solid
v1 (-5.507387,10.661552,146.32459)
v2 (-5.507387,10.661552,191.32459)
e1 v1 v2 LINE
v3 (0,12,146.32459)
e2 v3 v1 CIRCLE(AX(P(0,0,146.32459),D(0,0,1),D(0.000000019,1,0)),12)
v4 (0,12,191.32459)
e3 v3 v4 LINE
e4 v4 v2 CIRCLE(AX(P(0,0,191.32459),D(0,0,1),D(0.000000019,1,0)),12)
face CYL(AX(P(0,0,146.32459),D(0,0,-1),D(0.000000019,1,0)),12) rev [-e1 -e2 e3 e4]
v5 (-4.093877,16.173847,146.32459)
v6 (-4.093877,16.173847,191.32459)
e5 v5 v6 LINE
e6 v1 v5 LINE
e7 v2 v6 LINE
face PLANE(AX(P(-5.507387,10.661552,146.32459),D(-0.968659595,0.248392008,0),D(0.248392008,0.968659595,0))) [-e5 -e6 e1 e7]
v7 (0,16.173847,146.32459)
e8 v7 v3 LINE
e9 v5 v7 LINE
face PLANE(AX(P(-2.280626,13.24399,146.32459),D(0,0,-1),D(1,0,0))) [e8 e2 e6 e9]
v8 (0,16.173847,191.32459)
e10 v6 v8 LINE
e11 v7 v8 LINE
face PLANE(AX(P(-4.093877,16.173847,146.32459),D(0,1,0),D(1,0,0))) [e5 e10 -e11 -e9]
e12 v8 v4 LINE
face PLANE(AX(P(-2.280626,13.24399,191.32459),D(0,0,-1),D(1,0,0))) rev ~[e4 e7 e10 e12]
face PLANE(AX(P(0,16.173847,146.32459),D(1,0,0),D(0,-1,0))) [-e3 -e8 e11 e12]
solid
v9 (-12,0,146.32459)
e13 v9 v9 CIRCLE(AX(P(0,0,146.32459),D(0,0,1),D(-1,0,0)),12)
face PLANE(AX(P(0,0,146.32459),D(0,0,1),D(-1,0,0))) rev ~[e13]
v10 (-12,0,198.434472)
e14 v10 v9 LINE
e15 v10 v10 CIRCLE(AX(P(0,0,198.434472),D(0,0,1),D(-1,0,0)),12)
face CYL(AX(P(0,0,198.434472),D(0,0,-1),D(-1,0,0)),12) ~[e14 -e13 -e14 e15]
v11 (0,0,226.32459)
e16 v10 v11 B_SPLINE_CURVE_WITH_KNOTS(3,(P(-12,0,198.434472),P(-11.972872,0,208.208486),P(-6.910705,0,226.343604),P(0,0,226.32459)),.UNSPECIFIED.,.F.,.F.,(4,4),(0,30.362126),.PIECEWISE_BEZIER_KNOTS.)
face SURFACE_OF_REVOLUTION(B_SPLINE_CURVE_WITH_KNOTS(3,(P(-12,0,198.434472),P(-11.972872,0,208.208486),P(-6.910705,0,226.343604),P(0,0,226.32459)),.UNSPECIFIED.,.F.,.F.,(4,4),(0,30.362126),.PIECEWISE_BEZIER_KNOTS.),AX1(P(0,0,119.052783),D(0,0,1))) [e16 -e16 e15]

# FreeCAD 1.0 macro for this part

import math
import FreeCAD as App
import Part
import Sketcher
from FreeCAD import Vector

doc = App.newDocument("Part")
params = doc.addObject("Spreadsheet::Sheet", "Params")
for row, (alias, value) in enumerate([
    ("sketch1_height", "80 mm"),
    ("revolution_angle", "360 deg"),
    ("sketch2_radius", "12 mm"),
    ("pad1_length", "45 mm"),
], start=1):
    params.set(f"A{row}", alias)
    params.set(f"B{row}", "=" + value)
    params.setAlias(f"B{row}", alias)

body = doc.addObject("PartDesign::Body", "Body")

# Sketch on XZ plane
sketch1 = doc.addObject("Sketcher::SketchObject", "Sketch")
body.addObject(sketch1)
sketch1.AttachmentSupport = (doc.XZ_Plane, [""])
sketch1.MapMode = "FlatFace"
sketch1.addGeometry([
    Part.BSplineCurve([Vector(-12, 198.434472, 0), Vector(-11.972872, 208.208486, 0), Vector(-6.910705, 226.343604, 0), Vector(0, 226.32459, 0)], [4, 4], [0, 30.362126], False, 3, [1, 1, 1, 1], False),
    Part.LineSegment(Vector(-12, 198.434472, 0), Vector(-12, 146.32459, 0)),
    Part.LineSegment(Vector(-12, 146.32459, 0), Vector(0, 146.32459, 0)),
    Part.LineSegment(Vector(0, 146.32459, 0), Vector(0, 226.32459, 0)),
], False)
sketch1.addConstraint([
    Sketcher.Constraint("Block", 0),
    Sketcher.Constraint("Coincident", 0, 1, 1, 1),
    Sketcher.Constraint("Coincident", 1, 2, 2, 1),
    Sketcher.Constraint("Coincident", 2, 2, 3, 1),
    Sketcher.Constraint("Coincident", 3, 2, 0, 2),
    Sketcher.Constraint("Vertical", 1),
    Sketcher.Constraint("Horizontal", 2),
    Sketcher.Constraint("Vertical", 3),
    Sketcher.Constraint("DistanceY", 3, 1, 3, 2, 80.0),
])
sketch1.setExpression("Constraints[8]", "Params.sketch1_height")
revolution = doc.addObject("PartDesign::Revolution", "Revolution")
body.addObject(revolution)
revolution.Profile = sketch1
revolution.ReferenceAxis = (sketch1, ["V_Axis"])
revolution.setExpression("Angle", "Params.revolution_angle")
body2 = doc.addObject("PartDesign::Body", "Body001")

# Sketch on XY plane
sketch2 = doc.addObject("Sketcher::SketchObject", "Sketch001")
body2.addObject(sketch2)
sketch2.AttachmentSupport = (doc.getObject("XY_Plane001"), [""])
sketch2.MapMode = "FlatFace"
sketch2.AttachmentOffset = App.Placement(Vector(0, 0, 146.32459), App.Rotation())
sketch2.addGeometry([
    Part.LineSegment(Vector(0, 16.173847, 0), Vector(0, 12, 0)),
    Part.ArcOfCircle(Part.Circle(Vector(0, 0, 0), Vector(0, 0, 1), 12), math.radians(89.999999), math.radians(117.319302)),
    Part.LineSegment(Vector(-5.507387, 10.661552, 0), Vector(-4.093877, 16.173847, 0)),
    Part.LineSegment(Vector(-4.093877, 16.173847, 0), Vector(0, 16.173847, 0)),
], False)
sketch2.addConstraint([
    Sketcher.Constraint("Coincident", 0, 2, 1, 1),
    Sketcher.Constraint("Coincident", 1, 2, 2, 1),
    Sketcher.Constraint("Coincident", 2, 2, 3, 1),
    Sketcher.Constraint("Coincident", 3, 2, 0, 1),
    Sketcher.Constraint("Vertical", 0),
    Sketcher.Constraint("Horizontal", 3),
    Sketcher.Constraint("Coincident", 1, 3, -1, 1),
    Sketcher.Constraint("PointOnObject", 0, 2, -2),
    Sketcher.Constraint("Radius", 1, 12.0),
    Sketcher.Constraint("DistanceX", 3, 1, 3, 2, 4.093877),
    Sketcher.Constraint("DistanceY", 0, 2, 0, 1, 4.173847),
    Sketcher.Constraint("DistanceY", -1, 1, 1, 2, 10.661552),
])
sketch2.setExpression("Constraints[8]", "Params.sketch2_radius")
pad1 = doc.addObject("PartDesign::Pad", "Pad")
body2.addObject(pad1)
pad1.Profile = sketch2
pad1.setExpression("Length", "Params.pad1_length")

doc.recompute()
